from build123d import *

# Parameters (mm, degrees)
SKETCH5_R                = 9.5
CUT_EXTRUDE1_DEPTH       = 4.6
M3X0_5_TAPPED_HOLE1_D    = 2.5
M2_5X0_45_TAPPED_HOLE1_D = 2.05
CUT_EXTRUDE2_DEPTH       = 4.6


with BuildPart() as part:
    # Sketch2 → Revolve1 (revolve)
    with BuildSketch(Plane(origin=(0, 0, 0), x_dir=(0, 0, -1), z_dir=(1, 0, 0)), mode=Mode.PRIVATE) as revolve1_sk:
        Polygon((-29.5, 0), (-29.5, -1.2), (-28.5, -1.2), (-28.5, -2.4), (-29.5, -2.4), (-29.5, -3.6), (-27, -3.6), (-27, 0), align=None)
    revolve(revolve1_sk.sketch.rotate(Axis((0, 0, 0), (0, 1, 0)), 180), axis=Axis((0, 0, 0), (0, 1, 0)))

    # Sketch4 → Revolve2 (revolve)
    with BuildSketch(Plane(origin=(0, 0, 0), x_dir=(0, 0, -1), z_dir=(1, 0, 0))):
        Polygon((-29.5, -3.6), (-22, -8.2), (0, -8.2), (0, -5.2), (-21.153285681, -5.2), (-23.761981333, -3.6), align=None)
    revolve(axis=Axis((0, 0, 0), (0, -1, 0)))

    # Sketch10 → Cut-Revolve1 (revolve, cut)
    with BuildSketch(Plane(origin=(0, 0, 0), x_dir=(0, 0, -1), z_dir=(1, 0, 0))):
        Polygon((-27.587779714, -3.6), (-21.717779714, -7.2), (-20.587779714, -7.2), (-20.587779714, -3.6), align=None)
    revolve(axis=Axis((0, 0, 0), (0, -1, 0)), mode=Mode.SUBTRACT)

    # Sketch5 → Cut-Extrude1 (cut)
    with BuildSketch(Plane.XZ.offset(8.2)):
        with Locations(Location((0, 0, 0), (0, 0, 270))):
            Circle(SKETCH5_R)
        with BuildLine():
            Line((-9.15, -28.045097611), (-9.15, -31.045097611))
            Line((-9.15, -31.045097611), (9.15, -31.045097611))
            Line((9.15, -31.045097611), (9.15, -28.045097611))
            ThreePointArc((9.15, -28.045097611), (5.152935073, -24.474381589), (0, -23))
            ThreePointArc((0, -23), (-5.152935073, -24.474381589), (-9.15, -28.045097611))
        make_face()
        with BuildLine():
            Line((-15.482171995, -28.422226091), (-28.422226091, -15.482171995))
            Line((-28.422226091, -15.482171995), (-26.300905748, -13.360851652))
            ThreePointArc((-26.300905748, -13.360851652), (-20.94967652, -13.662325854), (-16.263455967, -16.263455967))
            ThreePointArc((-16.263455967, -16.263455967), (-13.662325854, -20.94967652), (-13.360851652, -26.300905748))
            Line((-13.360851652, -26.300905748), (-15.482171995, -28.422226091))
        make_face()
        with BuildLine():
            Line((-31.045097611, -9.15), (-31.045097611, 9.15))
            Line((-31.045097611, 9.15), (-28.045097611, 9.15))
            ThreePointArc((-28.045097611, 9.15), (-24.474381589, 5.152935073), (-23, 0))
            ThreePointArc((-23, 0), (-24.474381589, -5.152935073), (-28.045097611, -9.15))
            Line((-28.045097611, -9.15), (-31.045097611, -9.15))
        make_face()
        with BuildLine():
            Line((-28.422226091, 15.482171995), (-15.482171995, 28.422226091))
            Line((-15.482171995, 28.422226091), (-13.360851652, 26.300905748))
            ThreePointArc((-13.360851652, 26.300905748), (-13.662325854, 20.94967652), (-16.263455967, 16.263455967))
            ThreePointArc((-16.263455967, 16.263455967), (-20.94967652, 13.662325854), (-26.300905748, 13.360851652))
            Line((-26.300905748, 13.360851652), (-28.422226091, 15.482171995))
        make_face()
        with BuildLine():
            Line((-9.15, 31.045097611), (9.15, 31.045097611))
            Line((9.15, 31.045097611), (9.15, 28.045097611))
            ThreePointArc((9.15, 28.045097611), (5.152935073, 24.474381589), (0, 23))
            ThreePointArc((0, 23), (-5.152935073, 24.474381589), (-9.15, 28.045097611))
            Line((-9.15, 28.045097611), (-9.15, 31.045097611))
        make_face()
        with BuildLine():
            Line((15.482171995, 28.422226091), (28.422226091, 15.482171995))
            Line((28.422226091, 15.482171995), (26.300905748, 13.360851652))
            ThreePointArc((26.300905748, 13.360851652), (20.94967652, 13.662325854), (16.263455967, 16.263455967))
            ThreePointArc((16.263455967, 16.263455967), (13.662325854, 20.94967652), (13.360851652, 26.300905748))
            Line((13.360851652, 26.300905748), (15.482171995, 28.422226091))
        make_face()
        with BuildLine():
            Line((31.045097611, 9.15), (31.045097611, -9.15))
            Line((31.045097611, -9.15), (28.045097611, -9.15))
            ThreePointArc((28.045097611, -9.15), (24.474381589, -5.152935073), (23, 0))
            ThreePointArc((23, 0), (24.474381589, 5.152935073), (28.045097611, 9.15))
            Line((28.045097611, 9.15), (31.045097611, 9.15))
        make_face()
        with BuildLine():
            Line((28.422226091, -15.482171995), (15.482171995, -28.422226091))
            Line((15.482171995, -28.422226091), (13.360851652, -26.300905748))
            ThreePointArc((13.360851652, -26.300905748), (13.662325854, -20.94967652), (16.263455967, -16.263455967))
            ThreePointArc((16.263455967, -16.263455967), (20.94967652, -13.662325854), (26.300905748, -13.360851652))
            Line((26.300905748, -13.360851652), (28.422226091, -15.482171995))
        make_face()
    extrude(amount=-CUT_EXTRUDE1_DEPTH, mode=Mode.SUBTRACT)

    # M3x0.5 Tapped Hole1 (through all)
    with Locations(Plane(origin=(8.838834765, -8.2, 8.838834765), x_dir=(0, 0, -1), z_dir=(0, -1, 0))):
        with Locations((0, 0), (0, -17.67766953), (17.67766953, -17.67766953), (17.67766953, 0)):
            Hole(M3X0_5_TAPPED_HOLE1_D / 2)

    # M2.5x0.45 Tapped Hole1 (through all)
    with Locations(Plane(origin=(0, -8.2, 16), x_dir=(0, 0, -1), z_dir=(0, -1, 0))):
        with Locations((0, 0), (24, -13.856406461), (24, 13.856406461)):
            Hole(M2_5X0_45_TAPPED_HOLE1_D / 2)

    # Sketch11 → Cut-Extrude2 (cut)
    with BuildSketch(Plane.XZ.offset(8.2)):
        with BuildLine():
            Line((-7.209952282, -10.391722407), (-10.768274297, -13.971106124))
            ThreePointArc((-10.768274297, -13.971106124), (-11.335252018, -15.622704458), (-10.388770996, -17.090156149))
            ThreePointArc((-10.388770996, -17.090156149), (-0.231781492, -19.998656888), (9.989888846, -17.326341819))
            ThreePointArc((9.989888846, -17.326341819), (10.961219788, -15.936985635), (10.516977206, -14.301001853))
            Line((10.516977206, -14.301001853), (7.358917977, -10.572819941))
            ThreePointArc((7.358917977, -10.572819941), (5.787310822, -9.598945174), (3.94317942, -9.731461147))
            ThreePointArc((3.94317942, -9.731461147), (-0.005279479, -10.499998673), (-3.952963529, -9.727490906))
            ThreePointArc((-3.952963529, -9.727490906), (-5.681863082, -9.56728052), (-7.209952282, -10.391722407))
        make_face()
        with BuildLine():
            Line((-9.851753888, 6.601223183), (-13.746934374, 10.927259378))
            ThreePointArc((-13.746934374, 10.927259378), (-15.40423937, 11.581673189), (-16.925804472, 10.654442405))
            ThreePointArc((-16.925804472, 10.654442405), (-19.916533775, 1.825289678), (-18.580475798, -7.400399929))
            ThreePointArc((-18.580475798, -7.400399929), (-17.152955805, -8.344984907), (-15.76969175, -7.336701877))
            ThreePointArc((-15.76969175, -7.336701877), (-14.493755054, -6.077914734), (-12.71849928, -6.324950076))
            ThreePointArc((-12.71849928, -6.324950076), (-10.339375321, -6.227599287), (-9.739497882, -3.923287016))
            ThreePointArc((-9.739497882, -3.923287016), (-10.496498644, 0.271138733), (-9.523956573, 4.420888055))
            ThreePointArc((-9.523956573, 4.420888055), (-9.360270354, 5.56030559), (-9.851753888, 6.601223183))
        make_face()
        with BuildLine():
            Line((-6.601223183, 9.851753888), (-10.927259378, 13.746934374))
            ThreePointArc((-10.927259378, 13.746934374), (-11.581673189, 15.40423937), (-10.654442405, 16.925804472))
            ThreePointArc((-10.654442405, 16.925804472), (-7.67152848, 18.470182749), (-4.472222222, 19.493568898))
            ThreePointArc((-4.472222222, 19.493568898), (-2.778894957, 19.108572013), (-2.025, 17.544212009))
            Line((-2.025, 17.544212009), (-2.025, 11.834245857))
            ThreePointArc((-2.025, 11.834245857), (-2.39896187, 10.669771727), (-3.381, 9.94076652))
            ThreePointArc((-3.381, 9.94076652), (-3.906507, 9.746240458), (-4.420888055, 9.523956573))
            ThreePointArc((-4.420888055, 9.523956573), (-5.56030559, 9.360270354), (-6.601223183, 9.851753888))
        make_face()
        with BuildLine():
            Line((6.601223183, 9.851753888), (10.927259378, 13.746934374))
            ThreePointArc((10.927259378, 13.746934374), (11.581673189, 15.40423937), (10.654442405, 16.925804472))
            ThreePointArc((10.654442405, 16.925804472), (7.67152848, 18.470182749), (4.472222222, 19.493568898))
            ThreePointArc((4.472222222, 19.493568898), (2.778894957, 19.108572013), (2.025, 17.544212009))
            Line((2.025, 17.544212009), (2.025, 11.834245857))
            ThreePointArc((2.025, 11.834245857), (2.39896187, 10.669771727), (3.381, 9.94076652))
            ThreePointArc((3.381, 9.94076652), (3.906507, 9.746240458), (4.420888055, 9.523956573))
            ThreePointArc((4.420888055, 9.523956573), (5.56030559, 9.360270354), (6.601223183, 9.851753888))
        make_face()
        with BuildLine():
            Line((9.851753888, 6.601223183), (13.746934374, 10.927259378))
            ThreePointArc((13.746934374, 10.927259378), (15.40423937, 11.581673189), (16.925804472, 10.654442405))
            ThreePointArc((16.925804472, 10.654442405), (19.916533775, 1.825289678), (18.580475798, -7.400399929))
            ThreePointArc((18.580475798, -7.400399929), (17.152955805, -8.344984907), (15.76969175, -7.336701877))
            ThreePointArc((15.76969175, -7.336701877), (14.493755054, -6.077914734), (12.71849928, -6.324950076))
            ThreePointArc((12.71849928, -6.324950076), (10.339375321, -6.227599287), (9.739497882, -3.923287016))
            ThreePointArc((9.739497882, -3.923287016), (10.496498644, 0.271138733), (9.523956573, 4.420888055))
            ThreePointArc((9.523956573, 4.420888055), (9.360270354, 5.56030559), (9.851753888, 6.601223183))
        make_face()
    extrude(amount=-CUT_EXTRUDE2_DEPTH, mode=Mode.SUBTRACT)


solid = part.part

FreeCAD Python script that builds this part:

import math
import FreeCAD as App
import Part
import Sketcher

V = App.Vector
Q = App.Units.Quantity

doc = App.newDocument("Part")
body = doc.addObject("PartDesign::Body", "Body")

# Sketch on YZ plane
sketch1 = body.newObject("Sketcher::SketchObject", "Sketch")
sketch1.AttachmentSupport = (doc.getObject("YZ_Plane"), [""])
sketch1.MapMode = "FlatFace"
sketch1.addGeometry(Part.LineSegment(V(0, 29.5, 0), V(-1.2, 29.5, 0)), False)
sketch1.addGeometry(Part.LineSegment(V(-1.2, 29.5, 0), V(-1.2, 28.5, 0)), False)
sketch1.addGeometry(Part.LineSegment(V(-1.2, 28.5, 0), V(-2.4, 28.5, 0)), False)
sketch1.addGeometry(Part.LineSegment(V(-2.4, 28.5, 0), V(-2.4, 29.5, 0)), False)
sketch1.addGeometry(Part.LineSegment(V(-2.4, 29.5, 0), V(-3.6, 29.5, 0)), False)
sketch1.addGeometry(Part.LineSegment(V(-3.6, 29.5, 0), V(-3.6, 27, 0)), False)
sketch1.addGeometry(Part.LineSegment(V(-3.6, 27, 0), V(0, 27, 0)), False)
sketch1.addGeometry(Part.LineSegment(V(0, 27, 0), V(0, 29.5, 0)), False)
sketch1.addConstraint(Sketcher.Constraint("Coincident", 0, 2, 1, 1))
sketch1.addConstraint(Sketcher.Constraint("Coincident", 1, 2, 2, 1))
sketch1.addConstraint(Sketcher.Constraint("Coincident", 2, 2, 3, 1))
sketch1.addConstraint(Sketcher.Constraint("Coincident", 3, 2, 4, 1))
sketch1.addConstraint(Sketcher.Constraint("Coincident", 4, 2, 5, 1))
sketch1.addConstraint(Sketcher.Constraint("Coincident", 5, 2, 6, 1))
sketch1.addConstraint(Sketcher.Constraint("Coincident", 6, 2, 7, 1))
sketch1.addConstraint(Sketcher.Constraint("Coincident", 7, 2, 0, 1))
sketch1.addConstraint(Sketcher.Constraint("Horizontal", 0))
sketch1.addConstraint(Sketcher.Constraint("Vertical", 1))
sketch1.addConstraint(Sketcher.Constraint("Horizontal", 2))
sketch1.addConstraint(Sketcher.Constraint("Vertical", 3))
sketch1.addConstraint(Sketcher.Constraint("Horizontal", 4))
sketch1.addConstraint(Sketcher.Constraint("Vertical", 5))
sketch1.addConstraint(Sketcher.Constraint("Horizontal", 6))
sketch1.addConstraint(Sketcher.Constraint("Vertical", 7))
sketch1.addConstraint(Sketcher.Constraint("PointOnObject", 6, 2, -2))
sketch1.addConstraint(Sketcher.Constraint("Horizontal", 0, 2, 3, 2))
sketch1.addConstraint(Sketcher.Constraint("Equal", 0, 2))
sketch1.addConstraint(Sketcher.Constraint("Equal", 2, 4))
sketch1.addConstraint(Sketcher.Constraint("DistanceY", 1, 2, 1, 1, 1.0))
sketch1.addConstraint(Sketcher.Constraint("DistanceX", 0, 2, 0, 1, 1.2))
sketch1.addConstraint(Sketcher.Constraint("DistanceY", 5, 2, 5, 1, 2.5))
sketch1.addConstraint(Sketcher.Constraint("DistanceY", -1, 1, 5, 2, 27.0))
revolution = body.newObject("PartDesign::Revolution", "Revolution")
revolution.Profile = sketch1
revolution.ReferenceAxis = (sketch1, ["H_Axis"])
revolution.Angle = 360

# Sketch on YZ plane
sketch2 = body.newObject("Sketcher::SketchObject", "Sketch001")
sketch2.AttachmentSupport = (doc.getObject("YZ_Plane"), [""])
sketch2.MapMode = "FlatFace"
sketch2.addGeometry(Part.LineSegment(V(-3.6, 29.5, 0), V(-8.2, 22, 0)), False)
sketch2.addGeometry(Part.LineSegment(V(-8.2, 22, 0), V(-8.2, 0, 0)), False)
sketch2.addGeometry(Part.LineSegment(V(-8.2, 0, 0), V(-5.2, 0, 0)), False)
sketch2.addGeometry(Part.LineSegment(V(-5.2, 0, 0), V(-5.2, 21.2, 0)), False)
sketch2.addGeometry(Part.LineSegment(V(-5.2, 21.2, 0), V(-3.6, 23.8, 0)), False)
sketch2.addGeometry(Part.LineSegment(V(-3.6, 23.8, 0), V(-3.6, 29.5, 0)), False)
sketch2.addConstraint(Sketcher.Constraint("Coincident", 0, 2, 1, 1))
sketch2.addConstraint(Sketcher.Constraint("Coincident", 1, 2, 2, 1))
sketch2.addConstraint(Sketcher.Constraint("Coincident", 2, 2, 3, 1))
sketch2.addConstraint(Sketcher.Constraint("Coincident", 3, 2, 4, 1))
sketch2.addConstraint(Sketcher.Constraint("Coincident", 4, 2, 5, 1))
sketch2.addConstraint(Sketcher.Constraint("Coincident", 5, 2, 0, 1))
sketch2.addConstraint(Sketcher.Constraint("Vertical", 1))
sketch2.addConstraint(Sketcher.Constraint("Horizontal", 2))
sketch2.addConstraint(Sketcher.Constraint("Vertical", 3))
sketch2.addConstraint(Sketcher.Constraint("Vertical", 5))
sketch2.addConstraint(Sketcher.Constraint("PointOnObject", 1, 2, -1))
sketch2.addConstraint(Sketcher.Constraint("Parallel", 0, 4))
sketch2.addConstraint(Sketcher.Constraint("DistanceX", 2, 1, 2, 2, 3.0))
sketch2.addConstraint(Sketcher.Constraint("DistanceY", 1, 2, 1, 1, 22.0))
sketch2.addConstraint(Sketcher.Constraint("DistanceX", 0, 2, -1, 1, 8.2))
sketch2.addConstraint(Sketcher.Constraint("DistanceX", 4, 2, -1, 1, 3.6))
sketch2.addConstraint(Sketcher.Constraint("DistanceY", -1, 1, 5, 2, 29.5))
sketch2.addConstraint(Sketcher.Constraint("DistanceY", 5, 1, 5, 2, 5.738019))
revolution2 = body.newObject("PartDesign::Revolution", "Revolution001")
revolution2.Profile = sketch2
revolution2.ReferenceAxis = (sketch2, ["H_Axis"])
revolution2.Angle = 360

# Sketch on YZ plane
sketch3 = body.newObject("Sketcher::SketchObject", "Sketch002")
sketch3.AttachmentSupport = (doc.getObject("YZ_Plane"), [""])
sketch3.MapMode = "FlatFace"
sketch3.addGeometry(Part.LineSegment(V(-3.6, 27.6, 0), V(-7.2, 21.7, 0)), False)
sketch3.addGeometry(Part.LineSegment(V(-7.2, 21.7, 0), V(-7.2, 20.6, 0)), False)
sketch3.addGeometry(Part.LineSegment(V(-7.2, 20.6, 0), V(-3.6, 20.6, 0)), False)
sketch3.addGeometry(Part.LineSegment(V(-3.6, 20.6, 0), V(-3.6, 27.6, 0)), False)
sketch3.addConstraint(Sketcher.Constraint("Coincident", 0, 2, 1, 1))
sketch3.addConstraint(Sketcher.Constraint("Coincident", 1, 2, 2, 1))
sketch3.addConstraint(Sketcher.Constraint("Coincident", 2, 2, 3, 1))
sketch3.addConstraint(Sketcher.Constraint("Coincident", 3, 2, 0, 1))
sketch3.addConstraint(Sketcher.Constraint("Vertical", 1))
sketch3.addConstraint(Sketcher.Constraint("Horizontal", 2))
sketch3.addConstraint(Sketcher.Constraint("Vertical", 3))
sketch3.addConstraint(Sketcher.Constraint("DistanceY", 3, 1, 3, 2, 7.0))
sketch3.addConstraint(Sketcher.Constraint("DistanceX", 2, 1, 2, 2, 3.6))
sketch3.addConstraint(Sketcher.Constraint("DistanceY", 1, 2, 1, 1, 1.13))
sketch3.addConstraint(Sketcher.Constraint("DistanceX", 0, 2, -1, 1, 7.2))
sketch3.addConstraint(Sketcher.Constraint("DistanceY", -1, 1, 0, 2, 21.71778))
groove = body.newObject("PartDesign::Groove", "Groove")
groove.Profile = sketch3
groove.ReferenceAxis = (sketch3, ["H_Axis"])
groove.Angle = 360

# Sketch on XZ plane
sketch4 = body.newObject("Sketcher::SketchObject", "Sketch003")
sketch4.AttachmentSupport = (doc.getObject("XZ_Plane"), [""])
sketch4.MapMode = "FlatFace"
sketch4.AttachmentOffset = App.Placement(V(0, 0, 8.2), App.Rotation())
sketch4.addGeometry(Part.Circle(V(0, 0, 0), V(0, 0, 1), 9.5), False)
sketch4.addGeometry(Part.LineSegment(V(-9.2, -28, 0), V(-9.2, -31, 0)), False)
sketch4.addGeometry(Part.LineSegment(V(-9.2, -31, 0), V(9.2, -31, 0)), False)
sketch4.addGeometry(Part.LineSegment(V(9.2, -31, 0), V(9.2, -28, 0)), False)
sketch4.addGeometry(Part.ArcOfCircle(Part.Circle(V(-0.6, -35, 0), V(0, 0, 1), 12), math.radians(35), math.radians(87)), False)
sketch4.addGeometry(Part.ArcOfCircle(Part.Circle(V(0.6, -35, 0), V(0, 0, 1), 12), math.radians(93), math.radians(145)), False)
sketch4.addGeometry(Part.LineSegment(V(-28.4, -15.5, 0), V(-15.5, -28.4, 0)), False)
sketch4.addGeometry(Part.LineSegment(V(-15.5, -28.4, 0), V(-13.4, -26.3, 0)), False)
sketch4.addGeometry(Part.ArcOfCircle(Part.Circle(V(-25.2, -24.3, 0), V(0, 0, 1), 12), math.radians(-10), math.radians(42)), False)
sketch4.addGeometry(Part.ArcOfCircle(Part.Circle(V(-24.3, -25.2, 0), V(0, 0, 1), 12), math.radians(48), math.radians(100)), False)
sketch4.addGeometry(Part.LineSegment(V(-26.3, -13.4, 0), V(-28.4, -15.5, 0)), False)
sketch4.addGeometry(Part.LineSegment(V(-31, 9.2, 0), V(-31, -9.2, 0)), False)
sketch4.addGeometry(Part.LineSegment(V(-31, -9.2, 0), V(-28, -9.2, 0)), False)
sketch4.addGeometry(Part.ArcOfCircle(Part.Circle(V(-35, 0.6, 0), V(0, 0, 1), 12), math.radians(-55), math.radians(-3)), False)
sketch4.addGeometry(Part.ArcOfCircle(Part.Circle(V(-35, -0.6, 0), V(0, 0, 1), 12), math.radians(3), math.radians(55)), False)
sketch4.addGeometry(Part.LineSegment(V(-28, 9.2, 0), V(-31, 9.2, 0)), False)
sketch4.addGeometry(Part.LineSegment(V(-15.5, 28.4, 0), V(-28.4, 15.5, 0)), False)
sketch4.addGeometry(Part.LineSegment(V(-28.4, 15.5, 0), V(-26.3, 13.4, 0)), False)
sketch4.addGeometry(Part.ArcOfCircle(Part.Circle(V(-24.3, 25.2, 0), V(0, 0, 1), 12), math.radians(-100), math.radians(-48)), False)
sketch4.addGeometry(Part.ArcOfCircle(Part.Circle(V(-25.2, 24.3, 0), V(0, 0, 1), 12), math.radians(-42), math.radians(10)), False)
sketch4.addGeometry(Part.LineSegment(V(-13.4, 26.3, 0), V(-15.5, 28.4, 0)), False)
sketch4.addGeometry(Part.LineSegment(V(9.2, 31, 0), V(-9.2, 31, 0)), False)
sketch4.addGeometry(Part.LineSegment(V(-9.2, 31, 0), V(-9.2, 28, 0)), False)
sketch4.addGeometry(Part.ArcOfCircle(Part.Circle(V(0.6, 35, 0), V(0, 0, 1), 12), math.radians(-145), math.radians(-93)), False)
sketch4.addGeometry(Part.ArcOfCircle(Part.Circle(V(-0.6, 35, 0), V(0, 0, 1), 12), math.radians(-87), math.radians(-35)), False)
sketch4.addGeometry(Part.LineSegment(V(9.2, 28, 0), V(9.2, 31, 0)), False)
sketch4.addGeometry(Part.LineSegment(V(28.4, 15.5, 0), V(15.5, 28.4, 0)), False)
sketch4.addGeometry(Part.LineSegment(V(15.5, 28.4, 0), V(13.4, 26.3, 0)), False)
sketch4.addGeometry(Part.ArcOfCircle(Part.Circle(V(25.2, 24.3, 0), V(0, 0, 1), 12), math.radians(170), math.radians(222)), False)
sketch4.addGeometry(Part.ArcOfCircle(Part.Circle(V(24.3, 25.2, 0), V(0, 0, 1), 12), math.radians(-132), math.radians(-80)), False)
sketch4.addGeometry(Part.LineSegment(V(26.3, 13.4, 0), V(28.4, 15.5, 0)), False)
sketch4.addGeometry(Part.LineSegment(V(31, -9.2, 0), V(31, 9.2, 0)), False)
sketch4.addGeometry(Part.LineSegment(V(31, 9.2, 0), V(28, 9.2, 0)), False)
sketch4.addGeometry(Part.ArcOfCircle(Part.Circle(V(35, -0.6, 0), V(0, 0, 1), 12), math.radians(125), math.radians(177)), False)
sketch4.addGeometry(Part.ArcOfCircle(Part.Circle(V(35, 0.6, 0), V(0, 0, 1), 12), math.radians(-177), math.radians(-125)), False)
sketch4.addGeometry(Part.LineSegment(V(28, -9.2, 0), V(31, -9.2, 0)), False)
sketch4.addGeometry(Part.LineSegment(V(15.5, -28.4, 0), V(28.4, -15.5, 0)), False)
sketch4.addGeometry(Part.LineSegment(V(28.4, -15.5, 0), V(26.3, -13.4, 0)), False)
sketch4.addGeometry(Part.ArcOfCircle(Part.Circle(V(24.3, -25.2, 0), V(0, 0, 1), 12), math.radians(80), math.radians(132)), False)
sketch4.addGeometry(Part.ArcOfCircle(Part.Circle(V(25.2, -24.3, 0), V(0, 0, 1), 12), math.radians(138), math.radians(190)), False)
sketch4.addGeometry(Part.LineSegment(V(13.4, -26.3, 0), V(15.5, -28.4, 0)), False)
sketch4.addConstraint(Sketcher.Constraint("Coincident", 1, 2, 2, 1))
sketch4.addConstraint(Sketcher.Constraint("Coincident", 2, 2, 3, 1))
sketch4.addConstraint(Sketcher.Constraint("Coincident", 3, 2, 4, 1))
sketch4.addConstraint(Sketcher.Constraint("Coincident", 4, 2, 5, 1))
sketch4.addConstraint(Sketcher.Constraint("Coincident", 5, 2, 1, 1))
sketch4.addConstraint(Sketcher.Constraint("Coincident", 6, 2, 7, 1))
sketch4.addConstraint(Sketcher.Constraint("Coincident", 7, 2, 8, 1))
sketch4.addConstraint(Sketcher.Constraint("Coincident", 8, 2, 9, 1))
sketch4.addConstraint(Sketcher.Constraint("Coincident", 9, 2, 10, 1))
sketch4.addConstraint(Sketcher.Constraint("Coincident", 10, 2, 6, 1))
sketch4.addConstraint(Sketcher.Constraint("Coincident", 11, 2, 12, 1))
sketch4.addConstraint(Sketcher.Constraint("Coincident", 12, 2, 13, 1))
sketch4.addConstraint(Sketcher.Constraint("Coincident", 13, 2, 14, 1))
sketch4.addConstraint(Sketcher.Constraint("Coincident", 14, 2, 15, 1))
sketch4.addConstraint(Sketcher.Constraint("Coincident", 15, 2, 11, 1))
sketch4.addConstraint(Sketcher.Constraint("Coincident", 16, 2, 17, 1))
sketch4.addConstraint(Sketcher.Constraint("Coincident", 17, 2, 18, 1))
sketch4.addConstraint(Sketcher.Constraint("Coincident", 18, 2, 19, 1))
sketch4.addConstraint(Sketcher.Constraint("Coincident", 19, 2, 20, 1))
sketch4.addConstraint(Sketcher.Constraint("Coincident", 20, 2, 16, 1))
sketch4.addConstraint(Sketcher.Constraint("Coincident", 21, 2, 22, 1))
sketch4.addConstraint(Sketcher.Constraint("Coincident", 22, 2, 23, 1))
sketch4.addConstraint(Sketcher.Constraint("Coincident", 23, 2, 24, 1))
sketch4.addConstraint(Sketcher.Constraint("Coincident", 24, 2, 25, 1))
sketch4.addConstraint(Sketcher.Constraint("Coincident", 25, 2, 21, 1))
sketch4.addConstraint(Sketcher.Constraint("Coincident", 26, 2, 27, 1))
sketch4.addConstraint(Sketcher.Constraint("Coincident", 27, 2, 28, 1))
sketch4.addConstraint(Sketcher.Constraint("Coincident", 28, 2, 29, 1))
sketch4.addConstraint(Sketcher.Constraint("Coincident", 29, 2, 30, 1))
sketch4.addConstraint(Sketcher.Constraint("Coincident", 30, 2, 26, 1))
sketch4.addConstraint(Sketcher.Constraint("Coincident", 31, 2, 32, 1))
sketch4.addConstraint(Sketcher.Constraint("Coincident", 32, 2, 33, 1))
sketch4.addConstraint(Sketcher.Constraint("Coincident", 33, 2, 34, 1))
sketch4.addConstraint(Sketcher.Constraint("Coincident", 34, 2, 35, 1))
sketch4.addConstraint(Sketcher.Constraint("Coincident", 35, 2, 31, 1))
sketch4.addConstraint(Sketcher.Constraint("Coincident", 36, 2, 37, 1))
sketch4.addConstraint(Sketcher.Constraint("Coincident", 37, 2, 38, 1))
sketch4.addConstraint(Sketcher.Constraint("Coincident", 38, 2, 39, 1))
sketch4.addConstraint(Sketcher.Constraint("Coincident", 39, 2, 40, 1))
sketch4.addConstraint(Sketcher.Constraint("Coincident", 40, 2, 36, 1))
sketch4.addConstraint(Sketcher.Constraint("Vertical", 1))
sketch4.addConstraint(Sketcher.Constraint("Horizontal", 2))
sketch4.addConstraint(Sketcher.Constraint("Vertical", 3))
sketch4.addConstraint(Sketcher.Constraint("Vertical", 11))
sketch4.addConstraint(Sketcher.Constraint("Horizontal", 12))
sketch4.addConstraint(Sketcher.Constraint("Horizontal", 15))
sketch4.addConstraint(Sketcher.Constraint("Horizontal", 21))
sketch4.addConstraint(Sketcher.Constraint("Vertical", 22))
sketch4.addConstraint(Sketcher.Constraint("Vertical", 25))
sketch4.addConstraint(Sketcher.Constraint("Vertical", 31))
sketch4.addConstraint(Sketcher.Constraint("Horizontal", 32))
sketch4.addConstraint(Sketcher.Constraint("Horizontal", 35))
sketch4.addConstraint(Sketcher.Constraint("Coincident", 0, 3, -1, 1))
sketch4.addConstraint(Sketcher.Constraint("Equal", 4, 5))
sketch4.addConstraint(Sketcher.Constraint("Equal", 5, 8))
sketch4.addConstraint(Sketcher.Constraint("Equal", 8, 9))
sketch4.addConstraint(Sketcher.Constraint("Equal", 9, 13))
sketch4.addConstraint(Sketcher.Constraint("Equal", 13, 14))
sketch4.addConstraint(Sketcher.Constraint("Equal", 14, 18))
sketch4.addConstraint(Sketcher.Constraint("Equal", 18, 19))
sketch4.addConstraint(Sketcher.Constraint("Equal", 19, 23))
sketch4.addConstraint(Sketcher.Constraint("Equal", 23, 24))
sketch4.addConstraint(Sketcher.Constraint("Equal", 24, 28))
sketch4.addConstraint(Sketcher.Constraint("Equal", 28, 29))
sketch4.addConstraint(Sketcher.Constraint("Equal", 29, 33))
sketch4.addConstraint(Sketcher.Constraint("Equal", 33, 34))
sketch4.addConstraint(Sketcher.Constraint("Equal", 34, 38))
sketch4.addConstraint(Sketcher.Constraint("Equal", 38, 39))
sketch4.addConstraint(Sketcher.Constraint("Symmetric", 4, 3, 23, 3, -1, 1))
sketch4.addConstraint(Sketcher.Constraint("Symmetric", 5, 3, 24, 3, -1, 1))
sketch4.addConstraint(Sketcher.Constraint("Symmetric", 8, 3, 28, 3, -1, 1))
sketch4.addConstraint(Sketcher.Constraint("Symmetric", 9, 3, 29, 3, -1, 1))
sketch4.addConstraint(Sketcher.Constraint("Symmetric", 13, 3, 33, 3, -1, 1))
sketch4.addConstraint(Sketcher.Constraint("Symmetric", 14, 3, 34, 3, -1, 1))
sketch4.addConstraint(Sketcher.Constraint("Symmetric", 18, 3, 38, 3, -1, 1))
sketch4.addConstraint(Sketcher.Constraint("Symmetric", 19, 3, 39, 3, -1, 1))
sketch4.addConstraint(Sketcher.Constraint("Symmetric", 2, 2, 21, 2, -1, 1))
sketch4.addConstraint(Sketcher.Constraint("Symmetric", 6, 2, 26, 2, -1, 1))
sketch4.addConstraint(Sketcher.Constraint("Symmetric", 10, 2, 30, 2, -1, 1))
sketch4.addConstraint(Sketcher.Constraint("Symmetric", 11, 2, 31, 2, -1, 1))
sketch4.addConstraint(Sketcher.Constraint("Symmetric", 16, 2, 36, 2, -1, 1))
sketch4.addConstraint(Sketcher.Constraint("Symmetric", 20, 2, 40, 2, -1, 1))
sketch4.addConstraint(Sketcher.Constraint("Symmetric", 4, 3, 5, 3, -2))
sketch4.addConstraint(Sketcher.Constraint("Symmetric", 19, 3, 28, 3, -2))
sketch4.addConstraint(Sketcher.Constraint("Symmetric", 18, 3, 29, 3, -2))
sketch4.addConstraint(Sketcher.Constraint("Symmetric", 14, 3, 33, 3, -2))
sketch4.addConstraint(Sketcher.Constraint("Symmetric", 20, 2, 26, 2, -2))
sketch4.addConstraint(Sketcher.Constraint("Symmetric", 16, 2, 30, 2, -2))
sketch4.addConstraint(Sketcher.Constraint("Perpendicular", 6, 7))
sketch4.addConstraint(Sketcher.Constraint("Parallel", 7, 10))
sketch4.addConstraint(Sketcher.Constraint("Parallel", 10, 16))
sketch4.addConstraint(Sketcher.Constraint("Perpendicular", 16, 17))
sketch4.addConstraint(Sketcher.Constraint("Parallel", 17, 20))
sketch4.addConstraint(Sketcher.Constraint("Perpendicular", 26, 27))
sketch4.addConstraint(Sketcher.Constraint("Parallel", 27, 30))
sketch4.addConstraint(Sketcher.Constraint("Perpendicular", 36, 37))
sketch4.addConstraint(Sketcher.Constraint("Parallel", 37, 40))
sketch4.addConstraint(Sketcher.Constraint("Horizontal", 3, 2, 5, 2))
sketch4.addConstraint(Sketcher.Constraint("Horizontal", 22, 2, 24, 2))
sketch4.addConstraint(Sketcher.Constraint("Horizontal", 15, 2, 31, 2))
sketch4.addConstraint(Sketcher.Constraint("Horizontal", 12, 2, 34, 2))
sketch4.addConstraint(Sketcher.Constraint("Equal", 35, 1))
sketch4.addConstraint(Sketcher.Constraint("Equal", 21, 11))
sketch4.addConstraint(Sketcher.Constraint("Equal", 7, 10))
sketch4.addConstraint(Sketcher.Constraint("Diameter", 0, 19.0))
sketch4.addConstraint(Sketcher.Constraint("Radius", 4, 12.0))
sketch4.addConstraint(Sketcher.Constraint("DistanceX", 12, 1, 12, 2, 3.0))
sketch4.addConstraint(Sketcher.Constraint("Distance", 7, 3.0))
sketch4.addConstraint(Sketcher.Constraint("DistanceX", 2, 1, 2, 2, 18.3))
sketch4.addConstraint(Sketcher.Constraint("DistanceY", 4, 2, -1, 1, 23.0))
sketch4.addConstraint(Sketcher.Constraint("DistanceX", 13, 2, -1, 1, 23.0))
sketch4.addConstraint(Sketcher.Constraint("Distance", 6, 18.3))
sketch4.addConstraint(Sketcher.Constraint("DistanceX", 8, 3, -1, 1, 25.190009))
sketch4.addConstraint(Sketcher.Constraint("DistanceY", 9, 3, -1, 1, 25.190009))
sketch4.addConstraint(Sketcher.Constraint("DistanceX", 6, 2, -1, 1, 15.482172))
sketch4.addConstraint(Sketcher.Constraint("DistanceY", 9, 2, -1, 1, 13.360852))
sketch4.addConstraint(Sketcher.Constraint("DistanceX", 4, 3, 5, 3, 1.282389))
sketch4.addConstraint(Sketcher.Constraint("DistanceX", 13, 3, 8, 3, 9.792849))
pocket1 = body.newObject("PartDesign::Pocket", "Pocket")
pocket1.Profile = sketch4
pocket1.Length = 4.6

# Sketch on XZ plane
sketch5 = body.newObject("Sketcher::SketchObject", "Sketch004")
sketch5.AttachmentSupport = (doc.getObject("XZ_Plane"), [""])
sketch5.MapMode = "FlatFace"
sketch5.AttachmentOffset = App.Placement(V(0, 0, 8.2), App.Rotation())
sketch5.addGeometry(Part.Circle(V(8.8, 8.8, 0), V(0, 0, 1), 1.2), False)
sketch5.addGeometry(Part.Circle(V(-8.8, 8.8, 0), V(0, 0, 1), 1.2), False)
sketch5.addGeometry(Part.Circle(V(-8.8, -8.8, 0), V(0, 0, 1), 1.2), False)
sketch5.addGeometry(Part.Circle(V(8.8, -8.8, 0), V(0, 0, 1), 1.2), False)
sketch5.addConstraint(Sketcher.Constraint("Equal", 0, 1))
sketch5.addConstraint(Sketcher.Constraint("Equal", 1, 2))
sketch5.addConstraint(Sketcher.Constraint("Equal", 2, 3))
sketch5.addConstraint(Sketcher.Constraint("Symmetric", 0, 3, 2, 3, -1, 1))
sketch5.addConstraint(Sketcher.Constraint("Symmetric", 1, 3, 3, 3, -1, 1))
sketch5.addConstraint(Sketcher.Constraint("Symmetric", 0, 3, 1, 3, -2))
sketch5.addConstraint(Sketcher.Constraint("Diameter", 0, 2.5))
sketch5.addConstraint(Sketcher.Constraint("DistanceX", 1, 3, 0, 3, 17.67767))
sketch5.addConstraint(Sketcher.Constraint("DistanceY", 2, 3, 1, 3, 17.67767))
doc.recompute()
hole = body.newObject("PartDesign::Hole", "Hole")
hole.Profile = sketch5
hole.ThreadType = "None"
hole.Diameter = 2.5
hole.DepthType = "ThroughAll"

# Sketch on XZ plane
sketch6 = body.newObject("Sketcher::SketchObject", "Sketch005")
sketch6.AttachmentSupport = (doc.getObject("XZ_Plane"), [""])
sketch6.MapMode = "FlatFace"
sketch6.AttachmentOffset = App.Placement(V(0, 0, 8.2), App.Rotation())
sketch6.addGeometry(Part.Circle(V(0, 16, 0), V(0, 0, 1), 1), False)
sketch6.addGeometry(Part.Circle(V(-13.9, -8, 0), V(0, 0, 1), 1), False)
sketch6.addGeometry(Part.Circle(V(13.9, -8, 0), V(0, 0, 1), 1), False)
sketch6.addConstraint(Sketcher.Constraint("Equal", 0, 1))
sketch6.addConstraint(Sketcher.Constraint("Equal", 1, 2))
sketch6.addConstraint(Sketcher.Constraint("Symmetric", 1, 3, 2, 3, -2))
sketch6.addConstraint(Sketcher.Constraint("PointOnObject", 0, 3, -2))
sketch6.addConstraint(Sketcher.Constraint("Diameter", 0, 2.05))
sketch6.addConstraint(Sketcher.Constraint("DistanceY", -1, 1, 0, 3, 16.0))
sketch6.addConstraint(Sketcher.Constraint("DistanceY", 1, 3, -1, 1, 8.0))
sketch6.addConstraint(Sketcher.Constraint("DistanceX", 1, 3, -1, 1, 13.856406))
doc.recompute()
hole2 = body.newObject("PartDesign::Hole", "Hole001")
hole2.Profile = sketch6
hole2.ThreadType = "None"
hole2.Diameter = 2.05
hole2.DepthType = "ThroughAll"

# Sketch on XZ plane
sketch7 = body.newObject("Sketcher::SketchObject", "Sketch006")
sketch7.AttachmentSupport = (doc.getObject("XZ_Plane"), [""])
sketch7.MapMode = "FlatFace"
sketch7.AttachmentOffset = App.Placement(V(0, 0, 8.2), App.Rotation())
sketch7.addGeometry(Part.LineSegment(V(-7.2, -10.4, 0), V(-10.8, -14, 0)), False)
sketch7.addGeometry(Part.ArcOfCircle(Part.Circle(V(-9.3, -15.4, 0), V(0, 0, 1), 2), math.radians(135), math.radians(239)), False)
sketch7.addGeometry(Part.ArcOfCircle(Part.Circle(V(0, 0, 0), V(0, 0, 1), 20), math.radians(-121), math.radians(-60)), False)
sketch7.addGeometry(Part.ArcOfCircle(Part.Circle(V(9, -15.6, 0), V(0, 0, 1), 2), math.radians(-60), math.radians(40)), False)
sketch7.addGeometry(Part.LineSegment(V(10.5, -14.3, 0), V(7.4, -10.6, 0)), False)
sketch7.addGeometry(Part.ArcOfCircle(Part.Circle(V(5.1, -12.5, 0), V(0, 0, 1), 3), math.radians(40), math.radians(112)), False)
sketch7.addGeometry(Part.ArcOfCircle(Part.Circle(V(0, 0, 0), V(0, 0, 1), 10.5), math.radians(-112), math.radians(-68)), False)
sketch7.addGeometry(Part.ArcOfCircle(Part.Circle(V(-5.1, -12.5, 0), V(0, 0, 1), 3), math.radians(68), math.radians(135)), False)
sketch7.addGeometry(Part.LineSegment(V(-9.9, 6.6, 0), V(-13.7, 10.9, 0)), False)
sketch7.addGeometry(Part.ArcOfCircle(Part.Circle(V(-15.2, 9.6, 0), V(0, 0, 1), 2), math.radians(42), math.radians(148)), False)
sketch7.addGeometry(Part.ArcOfCircle(Part.Circle(V(0, 0, 0), V(0, 0, 1), 20), math.radians(148), math.radians(202)), False)
sketch7.addGeometry(Part.ArcOfCircle(Part.Circle(V(-17.2, -6.8, 0), V(0, 0, 1), 1.5), math.radians(-158), math.radians(-19)), False)
sketch7.addGeometry(Part.ArcOfCircle(Part.Circle(V(-13.9, -8, 0), V(0, 0, 1), 2), math.radians(56), math.radians(161)), False)
sketch7.addGeometry(Part.ArcOfCircle(Part.Circle(V(-11.6, -4.7, 0), V(0, 0, 1), 2), math.radians(-124), math.radians(22)), False)
sketch7.addGeometry(Part.ArcOfCircle(Part.Circle(V(0, 0, 0), V(0, 0, 1), 10.5), math.radians(155), math.radians(202)), False)
sketch7.addGeometry(Part.ArcOfCircle(Part.Circle(V(-11.3, 5.3, 0), V(0, 0, 1), 2), math.radians(-25), math.radians(42)), False)
sketch7.addGeometry(Part.LineSegment(V(-10.9, 13.7, 0), V(-6.6, 9.9, 0)), False)
sketch7.addGeometry(Part.ArcOfCircle(Part.Circle(V(-5.3, 11.3, 0), V(0, 0, 1), 2), math.radians(-132), math.radians(-65)), False)
sketch7.addGeometry(Part.ArcOfCircle(Part.Circle(V(0, 0, 0), V(0, 0, 1), 10.5), math.radians(108.78), math.radians(114.9)), False)
sketch7.addGeometry(Part.ArcOfCircle(Part.Circle(V(-4, 11.8, 0), V(0, 0, 1), 2), math.radians(-71), math.radians(0)), False)
sketch7.addGeometry(Part.LineSegment(V(-2, 11.8, 0), V(-2, 17.5, 0)), False)
sketch7.addGeometry(Part.ArcOfCircle(Part.Circle(V(-4, 17.5, 0), V(0, 0, 1), 2), math.radians(0), math.radians(103)), False)
sketch7.addGeometry(Part.ArcOfCircle(Part.Circle(V(0, 0, 0), V(0, 0, 1), 20), math.radians(102.92), math.radians(122.19)), False)
sketch7.addGeometry(Part.ArcOfCircle(Part.Circle(V(-9.6, 15.2, 0), V(0, 0, 1), 2), math.radians(122), math.radians(228)), False)
sketch7.addGeometry(Part.LineSegment(V(6.6, 9.9, 0), V(10.9, 13.7, 0)), False)
sketch7.addGeometry(Part.ArcOfCircle(Part.Circle(V(9.6, 15.2, 0), V(0, 0, 1), 2), math.radians(-48), math.radians(58)), False)
sketch7.addGeometry(Part.ArcOfCircle(Part.Circle(V(0, 0, 0), V(0, 0, 1), 20), math.radians(57.81), math.radians(77.08)), False)
sketch7.addGeometry(Part.ArcOfCircle(Part.Circle(V(4, 17.5, 0), V(0, 0, 1), 2), math.radians(77), math.radians(180)), False)
sketch7.addGeometry(Part.LineSegment(V(2, 17.5, 0), V(2, 11.8, 0)), False)
sketch7.addGeometry(Part.ArcOfCircle(Part.Circle(V(4, 11.8, 0), V(0, 0, 1), 2), math.radians(180), math.radians(251)), False)
sketch7.addGeometry(Part.ArcOfCircle(Part.Circle(V(0, 0, 0), V(0, 0, 1), 10.5), math.radians(65.1), math.radians(71.22)), False)
sketch7.addGeometry(Part.ArcOfCircle(Part.Circle(V(5.3, 11.3, 0), V(0, 0, 1), 2), math.radians(-115), math.radians(-48)), False)
sketch7.addGeometry(Part.LineSegment(V(13.7, 10.9, 0), V(9.9, 6.6, 0)), False)
sketch7.addGeometry(Part.ArcOfCircle(Part.Circle(V(11.3, 5.3, 0), V(0, 0, 1), 2), math.radians(138), math.radians(205)), False)
sketch7.addGeometry(Part.ArcOfCircle(Part.Circle(V(0, 0, 0), V(0, 0, 1), 10.5), math.radians(-22), math.radians(25)), False)
sketch7.addGeometry(Part.ArcOfCircle(Part.Circle(V(11.6, -4.7, 0), V(0, 0, 1), 2), math.radians(158), math.radians(304)), False)
sketch7.addGeometry(Part.ArcOfCircle(Part.Circle(V(13.9, -8, 0), V(0, 0, 1), 2), math.radians(19), math.radians(124)), False)
sketch7.addGeometry(Part.ArcOfCircle(Part.Circle(V(17.2, -6.8, 0), V(0, 0, 1), 1.5), math.radians(-161), math.radians(-22)), False)
sketch7.addGeometry(Part.ArcOfCircle(Part.Circle(V(0, 0, 0), V(0, 0, 1), 20), math.radians(-22), math.radians(32)), False)
sketch7.addGeometry(Part.ArcOfCircle(Part.Circle(V(15.2, 9.6, 0), V(0, 0, 1), 2), math.radians(32), math.radians(138)), False)
sketch7.addConstraint(Sketcher.Constraint("Tangent", 0, 2, 1, 1))
sketch7.addConstraint(Sketcher.Constraint("Tangent", 1, 2, 2, 1))
sketch7.addConstraint(Sketcher.Constraint("Tangent", 2, 2, 3, 1))
sketch7.addConstraint(Sketcher.Constraint("Tangent", 3, 2, 4, 1))
sketch7.addConstraint(Sketcher.Constraint("Tangent", 4, 2, 5, 1))
sketch7.addConstraint(Sketcher.Constraint("Tangent", 5, 2, 6, 2))
sketch7.addConstraint(Sketcher.Constraint("Tangent", 6, 1, 7, 1))
sketch7.addConstraint(Sketcher.Constraint("Tangent", 7, 2, 0, 1))
sketch7.addConstraint(Sketcher.Constraint("Tangent", 8, 2, 9, 1))
sketch7.addConstraint(Sketcher.Constraint("Tangent", 9, 2, 10, 1))
sketch7.addConstraint(Sketcher.Constraint("Tangent", 10, 2, 11, 1))
sketch7.addConstraint(Sketcher.Constraint("Tangent", 11, 2, 12, 2))
sketch7.addConstraint(Sketcher.Constraint("Tangent", 12, 1, 13, 1))
sketch7.addConstraint(Sketcher.Constraint("Tangent", 13, 2, 14, 2))
sketch7.addConstraint(Sketcher.Constraint("Tangent", 14, 1, 15, 1))
sketch7.addConstraint(Sketcher.Constraint("Tangent", 15, 2, 8, 1))
sketch7.addConstraint(Sketcher.Constraint("Tangent", 16, 2, 17, 1))
sketch7.addConstraint(Sketcher.Constraint("Tangent", 17, 2, 18, 2))
sketch7.addConstraint(Sketcher.Constraint("Tangent", 18, 1, 19, 1))
sketch7.addConstraint(Sketcher.Constraint("Tangent", 19, 2, 20, 1))
sketch7.addConstraint(Sketcher.Constraint("Tangent", 20, 2, 21, 1))
sketch7.addConstraint(Sketcher.Constraint("Tangent", 21, 2, 22, 1))
sketch7.addConstraint(Sketcher.Constraint("Tangent", 22, 2, 23, 1))
sketch7.addConstraint(Sketcher.Constraint("Tangent", 23, 2, 16, 1))
sketch7.addConstraint(Sketcher.Constraint("Tangent", 24, 2, 25, 1))
sketch7.addConstraint(Sketcher.Constraint("Tangent", 25, 2, 26, 1))
sketch7.addConstraint(Sketcher.Constraint("Tangent", 26, 2, 27, 1))
sketch7.addConstraint(Sketcher.Constraint("Tangent", 27, 2, 28, 1))
sketch7.addConstraint(Sketcher.Constraint("Tangent", 28, 2, 29, 1))
sketch7.addConstraint(Sketcher.Constraint("Tangent", 29, 2, 30, 2))
sketch7.addConstraint(Sketcher.Constraint("Tangent", 30, 1, 31, 1))
sketch7.addConstraint(Sketcher.Constraint("Tangent", 31, 2, 24, 1))
sketch7.addConstraint(Sketcher.Constraint("Tangent", 32, 2, 33, 1))
sketch7.addConstraint(Sketcher.Constraint("Tangent", 33, 2, 34, 2))
sketch7.addConstraint(Sketcher.Constraint("Tangent", 34, 1, 35, 1))
sketch7.addConstraint(Sketcher.Constraint("Tangent", 35, 2, 36, 2))
sketch7.addConstraint(Sketcher.Constraint("Tangent", 36, 1, 37, 1))
sketch7.addConstraint(Sketcher.Constraint("Tangent", 37, 2, 38, 1))
sketch7.addConstraint(Sketcher.Constraint("Tangent", 38, 2, 39, 1))
sketch7.addConstraint(Sketcher.Constraint("Tangent", 39, 2, 32, 1))
sketch7.addConstraint(Sketcher.Constraint("Vertical", 20))
sketch7.addConstraint(Sketcher.Constraint("Vertical", 28))
sketch7.addConstraint(Sketcher.Constraint("Coincident", 2, 3, -1, 1))
sketch7.addConstraint(Sketcher.Constraint("Coincident", 6, 3, -1, 1))
sketch7.addConstraint(Sketcher.Constraint("Coincident", 10, 3, -1, 1))
sketch7.addConstraint(Sketcher.Constraint("Coincident", 14, 3, -1, 1))
sketch7.addConstraint(Sketcher.Constraint("Coincident", 18, 3, -1, 1))
sketch7.addConstraint(Sketcher.Constraint("Coincident", 22, 3, -1, 1))
sketch7.addConstraint(Sketcher.Constraint("Coincident", 26, 3, -1, 1))
sketch7.addConstraint(Sketcher.Constraint("Coincident", 30, 3, -1, 1))
sketch7.addConstraint(Sketcher.Constraint("Coincident", 34, 3, -1, 1))
sketch7.addConstraint(Sketcher.Constraint("Coincident", 38, 3, -1, 1))
sketch7.addConstraint(Sketcher.Constraint("Equal", 1, 3))
sketch7.addConstraint(Sketcher.Constraint("Equal", 5, 7))
sketch7.addConstraint(Sketcher.Constraint("Equal", 3, 9))
sketch7.addConstraint(Sketcher.Constraint("Equal", 2, 10))
sketch7.addConstraint(Sketcher.Constraint("Equal", 9, 13))
sketch7.addConstraint(Sketcher.Constraint("Equal", 6, 14))
sketch7.addConstraint(Sketcher.Constraint("Equal", 13, 15))
sketch7.addConstraint(Sketcher.Constraint("Equal", 15, 17))
sketch7.addConstraint(Sketcher.Constraint("Equal", 14, 18))
sketch7.addConstraint(Sketcher.Constraint("Equal", 17, 19))
sketch7.addConstraint(Sketcher.Constraint("Equal", 19, 21))
sketch7.addConstraint(Sketcher.Constraint("Equal", 10, 22))
sketch7.addConstraint(Sketcher.Constraint("Equal", 21, 23))
sketch7.addConstraint(Sketcher.Constraint("Equal", 23, 25))
sketch7.addConstraint(Sketcher.Constraint("Equal", 22, 26))
sketch7.addConstraint(Sketcher.Constraint("Equal", 25, 27))
sketch7.addConstraint(Sketcher.Constraint("Equal", 27, 29))
sketch7.addConstraint(Sketcher.Constraint("Equal", 18, 30))
sketch7.addConstraint(Sketcher.Constraint("Equal", 29, 31))
sketch7.addConstraint(Sketcher.Constraint("Equal", 31, 33))
sketch7.addConstraint(Sketcher.Constraint("Equal", 30, 34))
sketch7.addConstraint(Sketcher.Constraint("Equal", 33, 35))
sketch7.addConstraint(Sketcher.Constraint("Equal", 12, 36))
sketch7.addConstraint(Sketcher.Constraint("Equal", 11, 37))
sketch7.addConstraint(Sketcher.Constraint("Equal", 26, 38))
sketch7.addConstraint(Sketcher.Constraint("Equal", 35, 39))
sketch7.addConstraint(Sketcher.Constraint("Symmetric", 12, 3, 36, 3, -2))
sketch7.addConstraint(Sketcher.Constraint("Symmetric", 23, 2, 24, 2, -2))
sketch7.addConstraint(Sketcher.Constraint("Symmetric", 15, 2, 32, 2, -2))
sketch7.addConstraint(Sketcher.Constraint("Perpendicular", 8, 24))
sketch7.addConstraint(Sketcher.Constraint("Horizontal", 21, 3, 27, 3))
sketch7.addConstraint(Sketcher.Constraint("Equal", 8, 16))
sketch7.addConstraint(Sketcher.Constraint("Radius", 1, 2.0))
sketch7.addConstraint(Sketcher.Constraint("Radius", 2, 20.0))
sketch7.addConstraint(Sketcher.Constraint("Radius", 5, 3.0))
sketch7.addConstraint(Sketcher.Constraint("Radius", 6, 10.5))
sketch7.addConstraint(Sketcher.Constraint("Radius", 11, 1.5))
sketch7.addConstraint(Sketcher.Constraint("Angle", 8, Q("132 deg")))
sketch7.addConstraint(Sketcher.Constraint("DistanceY", 12, 3, -1, 1, 8.0))
sketch7.addConstraint(Sketcher.Constraint("Radius", 12, 2.025))
sketch7.addConstraint(Sketcher.Constraint("DistanceY", -1, 1, 9, 3, 9.588998))
sketch7.addConstraint(Sketcher.Constraint("DistanceX", 19, 3, -1, 1, 4.025))
sketch7.addConstraint(Sketcher.Constraint("DistanceY", 3, 2, -1, 1, 14.301002))
sketch7.addConstraint(Sketcher.Constraint("DistanceX", -1, 1, 3, 3, 8.9909))
sketch7.addConstraint(Sketcher.Constraint("DistanceY", 10, 2, -1, 1, 7.4004))
sketch7.addConstraint(Sketcher.Constraint("DistanceY", 1, 3, -1, 1, 15.381141))
sketch7.addConstraint(Sketcher.Constraint("DistanceX", 7, 3, -1, 1, 5.082382))
pocket2 = body.newObject("PartDesign::Pocket", "Pocket001")
pocket2.Profile = sketch7
pocket2.Length = 4.6

doc.recompute()
